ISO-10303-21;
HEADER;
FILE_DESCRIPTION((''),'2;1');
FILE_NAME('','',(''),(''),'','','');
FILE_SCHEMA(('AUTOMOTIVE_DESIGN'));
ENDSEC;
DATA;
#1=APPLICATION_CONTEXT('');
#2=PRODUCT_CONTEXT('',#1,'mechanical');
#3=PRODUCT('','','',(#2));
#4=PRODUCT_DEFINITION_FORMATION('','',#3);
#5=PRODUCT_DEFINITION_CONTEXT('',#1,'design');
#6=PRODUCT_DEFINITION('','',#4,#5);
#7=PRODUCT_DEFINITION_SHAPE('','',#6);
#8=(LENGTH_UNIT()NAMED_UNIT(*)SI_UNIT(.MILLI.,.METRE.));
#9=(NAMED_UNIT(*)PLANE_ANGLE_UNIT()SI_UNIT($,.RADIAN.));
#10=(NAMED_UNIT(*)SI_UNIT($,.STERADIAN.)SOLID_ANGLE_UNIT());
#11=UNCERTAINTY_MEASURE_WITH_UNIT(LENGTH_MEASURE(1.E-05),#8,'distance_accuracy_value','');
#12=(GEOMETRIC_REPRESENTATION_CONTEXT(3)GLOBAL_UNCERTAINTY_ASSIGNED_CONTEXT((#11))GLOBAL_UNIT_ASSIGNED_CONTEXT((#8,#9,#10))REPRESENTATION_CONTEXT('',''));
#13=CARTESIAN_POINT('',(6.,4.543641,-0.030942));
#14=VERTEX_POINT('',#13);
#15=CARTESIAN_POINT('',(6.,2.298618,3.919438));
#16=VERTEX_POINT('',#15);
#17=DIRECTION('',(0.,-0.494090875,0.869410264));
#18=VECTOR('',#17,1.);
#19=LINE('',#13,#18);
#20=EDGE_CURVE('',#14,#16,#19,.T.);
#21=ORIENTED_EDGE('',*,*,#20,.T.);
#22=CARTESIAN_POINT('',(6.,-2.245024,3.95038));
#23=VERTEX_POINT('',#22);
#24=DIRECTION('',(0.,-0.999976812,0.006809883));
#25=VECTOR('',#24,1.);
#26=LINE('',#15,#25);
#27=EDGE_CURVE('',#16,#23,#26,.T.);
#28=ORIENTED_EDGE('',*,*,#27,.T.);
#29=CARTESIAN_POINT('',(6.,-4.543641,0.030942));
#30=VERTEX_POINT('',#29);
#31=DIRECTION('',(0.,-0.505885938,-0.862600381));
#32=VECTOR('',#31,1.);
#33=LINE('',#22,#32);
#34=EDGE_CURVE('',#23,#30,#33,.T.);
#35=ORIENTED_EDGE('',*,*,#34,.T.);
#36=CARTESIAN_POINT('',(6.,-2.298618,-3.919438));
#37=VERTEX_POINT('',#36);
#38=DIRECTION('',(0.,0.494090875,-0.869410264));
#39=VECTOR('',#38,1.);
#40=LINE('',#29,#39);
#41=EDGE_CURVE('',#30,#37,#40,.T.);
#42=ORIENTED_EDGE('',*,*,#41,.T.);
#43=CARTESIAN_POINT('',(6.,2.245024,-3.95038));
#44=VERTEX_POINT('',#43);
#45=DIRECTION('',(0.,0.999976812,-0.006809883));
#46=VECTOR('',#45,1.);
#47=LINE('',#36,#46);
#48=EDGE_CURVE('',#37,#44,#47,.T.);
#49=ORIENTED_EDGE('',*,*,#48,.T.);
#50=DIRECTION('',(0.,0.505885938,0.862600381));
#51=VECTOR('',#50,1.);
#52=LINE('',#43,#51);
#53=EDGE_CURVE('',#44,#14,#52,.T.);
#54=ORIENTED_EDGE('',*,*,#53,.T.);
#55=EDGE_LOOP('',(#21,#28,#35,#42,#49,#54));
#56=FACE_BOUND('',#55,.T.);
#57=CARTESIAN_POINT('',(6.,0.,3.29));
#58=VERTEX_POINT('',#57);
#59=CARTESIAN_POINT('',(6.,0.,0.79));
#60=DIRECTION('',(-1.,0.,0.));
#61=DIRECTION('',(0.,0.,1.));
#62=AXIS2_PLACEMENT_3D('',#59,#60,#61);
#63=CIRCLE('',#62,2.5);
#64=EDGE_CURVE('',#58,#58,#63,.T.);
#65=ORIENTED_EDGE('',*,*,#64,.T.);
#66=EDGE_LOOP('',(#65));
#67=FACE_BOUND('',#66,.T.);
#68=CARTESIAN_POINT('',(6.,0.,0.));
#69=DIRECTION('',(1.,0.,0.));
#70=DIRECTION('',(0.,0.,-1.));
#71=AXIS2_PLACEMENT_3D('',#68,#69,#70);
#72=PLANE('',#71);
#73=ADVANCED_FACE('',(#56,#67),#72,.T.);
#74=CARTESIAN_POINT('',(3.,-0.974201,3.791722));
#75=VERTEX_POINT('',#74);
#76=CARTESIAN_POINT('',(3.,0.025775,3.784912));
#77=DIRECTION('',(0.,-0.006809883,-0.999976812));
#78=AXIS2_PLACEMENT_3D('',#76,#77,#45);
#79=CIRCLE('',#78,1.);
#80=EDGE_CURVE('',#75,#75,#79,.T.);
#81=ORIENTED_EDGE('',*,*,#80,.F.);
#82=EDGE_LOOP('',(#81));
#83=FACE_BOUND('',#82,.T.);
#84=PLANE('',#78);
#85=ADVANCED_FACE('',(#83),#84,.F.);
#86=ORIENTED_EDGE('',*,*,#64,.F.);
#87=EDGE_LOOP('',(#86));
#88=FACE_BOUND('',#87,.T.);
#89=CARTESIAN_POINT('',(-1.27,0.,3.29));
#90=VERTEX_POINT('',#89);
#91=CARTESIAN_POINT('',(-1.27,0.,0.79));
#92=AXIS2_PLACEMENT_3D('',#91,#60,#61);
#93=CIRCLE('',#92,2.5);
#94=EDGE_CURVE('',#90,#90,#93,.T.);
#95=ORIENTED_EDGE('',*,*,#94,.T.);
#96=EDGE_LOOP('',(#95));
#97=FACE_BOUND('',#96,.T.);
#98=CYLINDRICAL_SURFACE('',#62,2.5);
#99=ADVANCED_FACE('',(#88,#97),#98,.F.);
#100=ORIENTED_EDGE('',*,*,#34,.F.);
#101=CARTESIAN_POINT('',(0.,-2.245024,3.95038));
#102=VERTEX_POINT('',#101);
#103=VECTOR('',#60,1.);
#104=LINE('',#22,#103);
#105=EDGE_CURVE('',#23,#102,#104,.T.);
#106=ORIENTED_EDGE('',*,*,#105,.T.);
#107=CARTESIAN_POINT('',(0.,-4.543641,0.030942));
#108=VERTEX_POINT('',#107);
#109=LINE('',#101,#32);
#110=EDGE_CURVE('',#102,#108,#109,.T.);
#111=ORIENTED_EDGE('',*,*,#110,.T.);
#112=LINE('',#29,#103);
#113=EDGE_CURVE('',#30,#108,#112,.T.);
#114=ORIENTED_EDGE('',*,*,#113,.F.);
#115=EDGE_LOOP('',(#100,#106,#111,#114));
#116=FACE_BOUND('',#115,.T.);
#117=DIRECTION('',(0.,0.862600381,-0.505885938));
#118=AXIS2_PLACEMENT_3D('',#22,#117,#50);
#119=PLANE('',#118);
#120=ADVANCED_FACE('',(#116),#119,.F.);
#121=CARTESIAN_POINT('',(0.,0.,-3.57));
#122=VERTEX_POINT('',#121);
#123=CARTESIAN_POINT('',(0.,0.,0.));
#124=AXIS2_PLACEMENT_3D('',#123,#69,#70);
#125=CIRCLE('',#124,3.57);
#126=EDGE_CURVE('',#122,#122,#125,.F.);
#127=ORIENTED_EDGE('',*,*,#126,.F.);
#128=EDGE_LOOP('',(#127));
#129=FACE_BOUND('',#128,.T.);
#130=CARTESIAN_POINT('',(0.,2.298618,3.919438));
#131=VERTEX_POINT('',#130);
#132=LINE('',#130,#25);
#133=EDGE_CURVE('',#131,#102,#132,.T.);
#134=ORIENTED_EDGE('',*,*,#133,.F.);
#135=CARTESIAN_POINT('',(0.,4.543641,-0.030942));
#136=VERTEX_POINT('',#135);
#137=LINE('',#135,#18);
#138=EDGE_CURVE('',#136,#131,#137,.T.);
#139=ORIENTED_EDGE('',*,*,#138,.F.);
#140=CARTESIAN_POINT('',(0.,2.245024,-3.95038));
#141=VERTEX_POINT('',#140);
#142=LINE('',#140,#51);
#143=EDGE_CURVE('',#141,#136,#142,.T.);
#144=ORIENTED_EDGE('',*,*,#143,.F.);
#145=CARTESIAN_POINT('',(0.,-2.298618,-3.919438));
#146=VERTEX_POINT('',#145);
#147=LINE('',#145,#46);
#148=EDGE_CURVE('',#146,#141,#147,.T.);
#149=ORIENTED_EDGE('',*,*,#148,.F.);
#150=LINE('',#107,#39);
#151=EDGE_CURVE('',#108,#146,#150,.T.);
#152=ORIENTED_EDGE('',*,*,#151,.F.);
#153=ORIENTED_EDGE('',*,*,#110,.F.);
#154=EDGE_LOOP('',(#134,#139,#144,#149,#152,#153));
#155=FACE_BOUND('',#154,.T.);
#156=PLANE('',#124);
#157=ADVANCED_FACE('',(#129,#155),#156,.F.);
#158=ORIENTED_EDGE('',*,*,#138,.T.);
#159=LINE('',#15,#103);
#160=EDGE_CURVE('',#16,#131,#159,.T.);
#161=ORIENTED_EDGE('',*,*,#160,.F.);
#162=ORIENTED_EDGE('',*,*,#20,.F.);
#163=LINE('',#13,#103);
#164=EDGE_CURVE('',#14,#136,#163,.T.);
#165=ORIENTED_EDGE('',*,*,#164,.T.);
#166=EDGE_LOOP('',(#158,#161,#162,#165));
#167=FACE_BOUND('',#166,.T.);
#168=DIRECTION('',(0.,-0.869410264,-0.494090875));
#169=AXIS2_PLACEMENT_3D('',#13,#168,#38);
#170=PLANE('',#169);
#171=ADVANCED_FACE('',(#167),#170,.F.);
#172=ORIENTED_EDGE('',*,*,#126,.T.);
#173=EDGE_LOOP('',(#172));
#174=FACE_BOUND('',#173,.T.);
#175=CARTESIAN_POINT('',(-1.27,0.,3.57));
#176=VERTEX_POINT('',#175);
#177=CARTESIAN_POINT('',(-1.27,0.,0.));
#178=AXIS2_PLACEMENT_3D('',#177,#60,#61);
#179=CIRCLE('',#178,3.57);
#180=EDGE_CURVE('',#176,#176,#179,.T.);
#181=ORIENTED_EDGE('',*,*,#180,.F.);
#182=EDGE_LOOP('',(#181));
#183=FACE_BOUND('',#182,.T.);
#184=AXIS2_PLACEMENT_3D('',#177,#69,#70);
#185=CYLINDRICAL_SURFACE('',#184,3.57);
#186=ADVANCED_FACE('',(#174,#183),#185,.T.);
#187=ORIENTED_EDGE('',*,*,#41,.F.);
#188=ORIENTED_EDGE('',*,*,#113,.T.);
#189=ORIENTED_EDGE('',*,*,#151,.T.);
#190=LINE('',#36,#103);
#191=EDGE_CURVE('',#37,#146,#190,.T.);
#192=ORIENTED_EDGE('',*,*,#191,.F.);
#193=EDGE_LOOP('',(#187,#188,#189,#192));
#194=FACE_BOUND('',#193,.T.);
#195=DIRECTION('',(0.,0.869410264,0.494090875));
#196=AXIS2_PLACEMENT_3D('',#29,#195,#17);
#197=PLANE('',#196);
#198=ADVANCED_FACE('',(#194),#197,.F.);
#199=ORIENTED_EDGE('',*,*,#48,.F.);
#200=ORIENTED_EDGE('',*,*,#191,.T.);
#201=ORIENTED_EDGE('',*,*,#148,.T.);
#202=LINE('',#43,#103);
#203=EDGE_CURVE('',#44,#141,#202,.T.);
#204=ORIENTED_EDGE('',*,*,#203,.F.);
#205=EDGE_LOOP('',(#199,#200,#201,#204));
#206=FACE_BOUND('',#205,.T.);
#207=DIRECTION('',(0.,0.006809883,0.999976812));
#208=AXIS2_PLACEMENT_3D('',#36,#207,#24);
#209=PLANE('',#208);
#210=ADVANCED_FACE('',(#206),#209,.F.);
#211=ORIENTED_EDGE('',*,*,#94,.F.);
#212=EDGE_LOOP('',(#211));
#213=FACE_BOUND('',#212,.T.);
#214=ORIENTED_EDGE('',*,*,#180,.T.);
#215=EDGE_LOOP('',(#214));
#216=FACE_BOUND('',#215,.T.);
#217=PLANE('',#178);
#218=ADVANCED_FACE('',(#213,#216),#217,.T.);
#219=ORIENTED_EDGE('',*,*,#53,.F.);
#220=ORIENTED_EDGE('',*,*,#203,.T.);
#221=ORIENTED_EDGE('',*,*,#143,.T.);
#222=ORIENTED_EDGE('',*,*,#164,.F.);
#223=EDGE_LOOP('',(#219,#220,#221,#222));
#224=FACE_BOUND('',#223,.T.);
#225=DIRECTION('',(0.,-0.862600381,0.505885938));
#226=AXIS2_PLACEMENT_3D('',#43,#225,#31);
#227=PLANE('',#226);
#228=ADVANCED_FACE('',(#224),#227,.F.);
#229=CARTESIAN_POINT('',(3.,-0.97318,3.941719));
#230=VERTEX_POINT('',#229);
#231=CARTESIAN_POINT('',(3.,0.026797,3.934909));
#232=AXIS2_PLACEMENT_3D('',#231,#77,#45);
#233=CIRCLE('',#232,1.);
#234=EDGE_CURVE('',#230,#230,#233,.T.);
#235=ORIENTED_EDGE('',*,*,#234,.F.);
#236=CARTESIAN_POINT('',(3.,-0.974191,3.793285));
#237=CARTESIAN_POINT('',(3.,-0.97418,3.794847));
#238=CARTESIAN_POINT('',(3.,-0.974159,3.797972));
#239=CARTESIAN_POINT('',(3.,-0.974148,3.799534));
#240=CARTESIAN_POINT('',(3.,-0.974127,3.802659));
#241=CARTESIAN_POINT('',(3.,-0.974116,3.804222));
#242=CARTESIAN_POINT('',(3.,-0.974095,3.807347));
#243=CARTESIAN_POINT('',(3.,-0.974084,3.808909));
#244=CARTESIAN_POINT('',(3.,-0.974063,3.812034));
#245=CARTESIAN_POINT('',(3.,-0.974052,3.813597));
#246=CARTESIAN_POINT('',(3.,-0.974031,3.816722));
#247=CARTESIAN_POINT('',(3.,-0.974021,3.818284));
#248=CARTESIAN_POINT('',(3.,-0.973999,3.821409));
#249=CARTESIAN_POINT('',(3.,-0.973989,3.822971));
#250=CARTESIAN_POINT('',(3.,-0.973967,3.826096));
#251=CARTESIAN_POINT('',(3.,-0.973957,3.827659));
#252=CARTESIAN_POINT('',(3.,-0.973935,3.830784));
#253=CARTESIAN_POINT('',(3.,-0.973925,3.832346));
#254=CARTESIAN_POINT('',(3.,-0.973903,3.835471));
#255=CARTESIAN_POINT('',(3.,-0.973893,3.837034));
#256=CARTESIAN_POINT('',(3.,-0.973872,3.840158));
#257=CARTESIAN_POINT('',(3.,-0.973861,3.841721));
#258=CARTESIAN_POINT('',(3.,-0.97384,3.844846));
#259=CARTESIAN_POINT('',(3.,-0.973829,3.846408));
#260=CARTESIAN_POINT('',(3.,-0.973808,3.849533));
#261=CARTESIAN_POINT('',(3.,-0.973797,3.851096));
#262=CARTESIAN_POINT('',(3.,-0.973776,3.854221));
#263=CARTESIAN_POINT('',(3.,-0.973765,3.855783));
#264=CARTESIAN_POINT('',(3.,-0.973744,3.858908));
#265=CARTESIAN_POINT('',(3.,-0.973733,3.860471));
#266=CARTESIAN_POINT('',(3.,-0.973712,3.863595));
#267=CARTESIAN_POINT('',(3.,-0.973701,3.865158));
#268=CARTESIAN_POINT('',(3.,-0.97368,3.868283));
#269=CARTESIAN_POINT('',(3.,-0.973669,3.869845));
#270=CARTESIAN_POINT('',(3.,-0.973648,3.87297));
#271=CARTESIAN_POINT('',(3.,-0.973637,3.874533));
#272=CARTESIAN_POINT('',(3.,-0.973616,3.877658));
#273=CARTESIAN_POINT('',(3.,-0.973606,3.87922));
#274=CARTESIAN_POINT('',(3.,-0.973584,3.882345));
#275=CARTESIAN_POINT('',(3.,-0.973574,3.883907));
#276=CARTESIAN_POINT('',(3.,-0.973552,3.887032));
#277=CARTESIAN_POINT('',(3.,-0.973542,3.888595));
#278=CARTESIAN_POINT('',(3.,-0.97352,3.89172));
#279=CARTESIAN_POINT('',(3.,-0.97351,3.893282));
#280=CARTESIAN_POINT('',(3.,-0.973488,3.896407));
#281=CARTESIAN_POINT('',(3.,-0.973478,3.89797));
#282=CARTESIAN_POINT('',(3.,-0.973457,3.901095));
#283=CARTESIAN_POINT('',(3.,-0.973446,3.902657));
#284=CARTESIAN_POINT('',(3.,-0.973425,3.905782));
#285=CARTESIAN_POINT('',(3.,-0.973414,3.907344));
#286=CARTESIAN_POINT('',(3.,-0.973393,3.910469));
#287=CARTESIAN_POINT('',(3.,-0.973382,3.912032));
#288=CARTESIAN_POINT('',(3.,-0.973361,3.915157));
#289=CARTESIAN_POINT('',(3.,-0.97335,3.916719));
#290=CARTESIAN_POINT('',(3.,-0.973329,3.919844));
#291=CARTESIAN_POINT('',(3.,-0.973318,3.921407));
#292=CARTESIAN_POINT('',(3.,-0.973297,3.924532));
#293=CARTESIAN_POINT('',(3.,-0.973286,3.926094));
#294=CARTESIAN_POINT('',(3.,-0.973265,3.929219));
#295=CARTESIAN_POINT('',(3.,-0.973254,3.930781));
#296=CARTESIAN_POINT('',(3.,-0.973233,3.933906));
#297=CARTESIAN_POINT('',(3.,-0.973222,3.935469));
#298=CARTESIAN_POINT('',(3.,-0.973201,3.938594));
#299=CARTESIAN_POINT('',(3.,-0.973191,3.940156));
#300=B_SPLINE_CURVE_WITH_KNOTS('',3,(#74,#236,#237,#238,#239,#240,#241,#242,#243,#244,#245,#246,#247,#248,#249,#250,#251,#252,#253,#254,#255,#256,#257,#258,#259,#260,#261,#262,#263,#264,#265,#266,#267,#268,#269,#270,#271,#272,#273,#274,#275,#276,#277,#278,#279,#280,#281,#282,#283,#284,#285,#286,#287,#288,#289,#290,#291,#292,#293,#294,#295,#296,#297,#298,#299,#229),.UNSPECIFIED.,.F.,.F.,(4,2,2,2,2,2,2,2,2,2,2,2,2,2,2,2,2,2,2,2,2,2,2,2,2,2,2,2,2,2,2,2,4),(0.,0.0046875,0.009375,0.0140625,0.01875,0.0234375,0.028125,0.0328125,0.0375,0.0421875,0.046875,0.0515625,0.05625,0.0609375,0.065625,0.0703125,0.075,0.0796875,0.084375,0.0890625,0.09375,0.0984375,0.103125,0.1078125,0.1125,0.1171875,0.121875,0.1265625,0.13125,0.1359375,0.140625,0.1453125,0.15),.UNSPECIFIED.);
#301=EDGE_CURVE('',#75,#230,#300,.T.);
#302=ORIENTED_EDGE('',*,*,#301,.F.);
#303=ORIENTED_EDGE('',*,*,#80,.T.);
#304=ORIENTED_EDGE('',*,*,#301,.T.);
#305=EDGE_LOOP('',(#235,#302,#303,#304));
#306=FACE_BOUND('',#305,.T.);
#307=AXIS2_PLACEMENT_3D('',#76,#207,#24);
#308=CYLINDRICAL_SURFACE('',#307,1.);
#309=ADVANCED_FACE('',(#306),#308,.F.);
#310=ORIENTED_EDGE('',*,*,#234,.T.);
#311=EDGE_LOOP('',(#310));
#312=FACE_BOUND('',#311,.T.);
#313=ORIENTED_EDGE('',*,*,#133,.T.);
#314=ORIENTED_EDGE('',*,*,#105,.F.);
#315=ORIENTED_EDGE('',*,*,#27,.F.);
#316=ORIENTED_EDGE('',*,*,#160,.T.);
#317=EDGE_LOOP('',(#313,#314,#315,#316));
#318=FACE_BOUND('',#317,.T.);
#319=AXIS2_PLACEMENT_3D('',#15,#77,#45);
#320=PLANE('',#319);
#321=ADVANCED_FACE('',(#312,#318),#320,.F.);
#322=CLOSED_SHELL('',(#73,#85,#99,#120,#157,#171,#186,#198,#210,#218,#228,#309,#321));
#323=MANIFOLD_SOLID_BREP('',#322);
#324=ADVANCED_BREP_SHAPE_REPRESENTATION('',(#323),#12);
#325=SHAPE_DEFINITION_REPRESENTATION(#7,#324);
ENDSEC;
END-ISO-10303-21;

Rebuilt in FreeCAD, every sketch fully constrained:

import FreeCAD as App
import Part
import Sketcher

V = App.Vector

doc = App.newDocument("Part")
body = doc.addObject("PartDesign::Body", "Body")

# Sketch on YZ plane
sketch1 = body.newObject("Sketcher::SketchObject", "Sketch")
sketch1.AttachmentSupport = (doc.getObject("YZ_Plane"), [""])
sketch1.MapMode = "FlatFace"
sketch1.addGeometry(Part.LineSegment(V(-2.298618, -3.919438, 0), V(2.245024, -3.95038, 0)), False)
sketch1.addGeometry(Part.LineSegment(V(2.245024, -3.95038, 0), V(4.543641, -0.030942, 0)), False)
sketch1.addGeometry(Part.LineSegment(V(4.543641, -0.030942, 0), V(2.298618, 3.919438, 0)), False)
sketch1.addGeometry(Part.LineSegment(V(2.298618, 3.919438, 0), V(-2.245024, 3.95038, 0)), False)
sketch1.addGeometry(Part.LineSegment(V(-2.245024, 3.95038, 0), V(-4.543641, 0.030942, 0)), False)
sketch1.addGeometry(Part.LineSegment(V(-4.543641, 0.030942, 0), V(-2.298618, -3.919438, 0)), False)
sketch1.addConstraint(Sketcher.Constraint("Coincident", 0, 2, 1, 1))
sketch1.addConstraint(Sketcher.Constraint("Coincident", 1, 2, 2, 1))
sketch1.addConstraint(Sketcher.Constraint("Coincident", 2, 2, 3, 1))
sketch1.addConstraint(Sketcher.Constraint("Coincident", 3, 2, 4, 1))
sketch1.addConstraint(Sketcher.Constraint("Coincident", 4, 2, 5, 1))
sketch1.addConstraint(Sketcher.Constraint("Coincident", 5, 2, 0, 1))
sketch1.addConstraint(Sketcher.Constraint("Symmetric", 0, 2, 3, 2, -1, 1))
sketch1.addConstraint(Sketcher.Constraint("Symmetric", 1, 2, 4, 2, -1, 1))
sketch1.addConstraint(Sketcher.Constraint("Symmetric", 2, 2, 5, 2, -1, 1))
sketch1.addConstraint(Sketcher.Constraint("Equal", 0, 1))
sketch1.addConstraint(Sketcher.Constraint("Equal", 1, 2))
sketch1.addConstraint(Sketcher.Constraint("DistanceY", 0, 2, -1, 1, 3.95038))
sketch1.addConstraint(Sketcher.Constraint("DistanceX", -1, 1, 1, 2, 4.543641))
sketch1.addConstraint(Sketcher.Constraint("DistanceY", 1, 2, 2, 2, 3.95038))
sketch1.addConstraint(Sketcher.Constraint("DistanceX", 3, 2, 2, 2, 4.543641))
pad1 = body.newObject("PartDesign::Pad", "Pad")
pad1.Profile = sketch1
pad1.Length = 6

# Sketch on YZ plane
sketch2 = body.newObject("Sketcher::SketchObject", "Sketch001")
sketch2.AttachmentSupport = (doc.getObject("YZ_Plane"), [""])
sketch2.MapMode = "FlatFace"
sketch2.addGeometry(Part.Circle(V(0, 0, 0), V(0, 0, 1), 3.57), False)
sketch2.addConstraint(Sketcher.Constraint("Coincident", 0, 3, -1, 1))
sketch2.addConstraint(Sketcher.Constraint("Diameter", 0, 7.14))
pad2 = body.newObject("PartDesign::Pad", "Pad001")
pad2.Profile = sketch2
pad2.Length = 1.27
pad2.Reversed = True

# Sketch on YZ plane
sketch3 = body.newObject("Sketcher::SketchObject", "Sketch002")
sketch3.AttachmentSupport = (doc.getObject("YZ_Plane"), [""])
sketch3.MapMode = "FlatFace"
sketch3.AttachmentOffset = App.Placement(V(0, 0, -1.27), App.Rotation())
sketch3.addGeometry(Part.Circle(V(0, 0.79, 0), V(0, 0, 1), 2.5), False)
sketch3.addConstraint(Sketcher.Constraint("PointOnObject", 0, 3, -2))
sketch3.addConstraint(Sketcher.Constraint("Diameter", 0, 5.0))
sketch3.addConstraint(Sketcher.Constraint("DistanceY", -1, 1, 0, 3, 0.79))
pocket1 = body.newObject("PartDesign::Pocket", "Pocket")
pocket1.Profile = sketch3
pocket1.Type = "ThroughAll"
pocket1.Reversed = True

# Sketch on an angled plane
sketch4 = body.newObject("Sketcher::SketchObject", "Sketch003")
sketch4.Placement = App.Placement(V(0, 0.026797, 3.934909), App.Rotation(V(1, 0, 0), V(0, -0.999976812, 0.006809883), V(0, -0.006809883, -0.999976812), "ZXY"))
sketch4.addGeometry(Part.Circle(V(3, 0, 0), V(0, 0, 1), 1), False)
sketch4.addConstraint(Sketcher.Constraint("PointOnObject", 0, 3, -1))
sketch4.addConstraint(Sketcher.Constraint("Diameter", 0, 2.0))
sketch4.addConstraint(Sketcher.Constraint("DistanceX", -1, 1, 0, 3, 3.0))
pocket2 = body.newObject("PartDesign::Pocket", "Pocket001")
pocket2.Profile = sketch4
pocket2.Length = 0.15
pocket2.Reversed = True

doc.recompute()
